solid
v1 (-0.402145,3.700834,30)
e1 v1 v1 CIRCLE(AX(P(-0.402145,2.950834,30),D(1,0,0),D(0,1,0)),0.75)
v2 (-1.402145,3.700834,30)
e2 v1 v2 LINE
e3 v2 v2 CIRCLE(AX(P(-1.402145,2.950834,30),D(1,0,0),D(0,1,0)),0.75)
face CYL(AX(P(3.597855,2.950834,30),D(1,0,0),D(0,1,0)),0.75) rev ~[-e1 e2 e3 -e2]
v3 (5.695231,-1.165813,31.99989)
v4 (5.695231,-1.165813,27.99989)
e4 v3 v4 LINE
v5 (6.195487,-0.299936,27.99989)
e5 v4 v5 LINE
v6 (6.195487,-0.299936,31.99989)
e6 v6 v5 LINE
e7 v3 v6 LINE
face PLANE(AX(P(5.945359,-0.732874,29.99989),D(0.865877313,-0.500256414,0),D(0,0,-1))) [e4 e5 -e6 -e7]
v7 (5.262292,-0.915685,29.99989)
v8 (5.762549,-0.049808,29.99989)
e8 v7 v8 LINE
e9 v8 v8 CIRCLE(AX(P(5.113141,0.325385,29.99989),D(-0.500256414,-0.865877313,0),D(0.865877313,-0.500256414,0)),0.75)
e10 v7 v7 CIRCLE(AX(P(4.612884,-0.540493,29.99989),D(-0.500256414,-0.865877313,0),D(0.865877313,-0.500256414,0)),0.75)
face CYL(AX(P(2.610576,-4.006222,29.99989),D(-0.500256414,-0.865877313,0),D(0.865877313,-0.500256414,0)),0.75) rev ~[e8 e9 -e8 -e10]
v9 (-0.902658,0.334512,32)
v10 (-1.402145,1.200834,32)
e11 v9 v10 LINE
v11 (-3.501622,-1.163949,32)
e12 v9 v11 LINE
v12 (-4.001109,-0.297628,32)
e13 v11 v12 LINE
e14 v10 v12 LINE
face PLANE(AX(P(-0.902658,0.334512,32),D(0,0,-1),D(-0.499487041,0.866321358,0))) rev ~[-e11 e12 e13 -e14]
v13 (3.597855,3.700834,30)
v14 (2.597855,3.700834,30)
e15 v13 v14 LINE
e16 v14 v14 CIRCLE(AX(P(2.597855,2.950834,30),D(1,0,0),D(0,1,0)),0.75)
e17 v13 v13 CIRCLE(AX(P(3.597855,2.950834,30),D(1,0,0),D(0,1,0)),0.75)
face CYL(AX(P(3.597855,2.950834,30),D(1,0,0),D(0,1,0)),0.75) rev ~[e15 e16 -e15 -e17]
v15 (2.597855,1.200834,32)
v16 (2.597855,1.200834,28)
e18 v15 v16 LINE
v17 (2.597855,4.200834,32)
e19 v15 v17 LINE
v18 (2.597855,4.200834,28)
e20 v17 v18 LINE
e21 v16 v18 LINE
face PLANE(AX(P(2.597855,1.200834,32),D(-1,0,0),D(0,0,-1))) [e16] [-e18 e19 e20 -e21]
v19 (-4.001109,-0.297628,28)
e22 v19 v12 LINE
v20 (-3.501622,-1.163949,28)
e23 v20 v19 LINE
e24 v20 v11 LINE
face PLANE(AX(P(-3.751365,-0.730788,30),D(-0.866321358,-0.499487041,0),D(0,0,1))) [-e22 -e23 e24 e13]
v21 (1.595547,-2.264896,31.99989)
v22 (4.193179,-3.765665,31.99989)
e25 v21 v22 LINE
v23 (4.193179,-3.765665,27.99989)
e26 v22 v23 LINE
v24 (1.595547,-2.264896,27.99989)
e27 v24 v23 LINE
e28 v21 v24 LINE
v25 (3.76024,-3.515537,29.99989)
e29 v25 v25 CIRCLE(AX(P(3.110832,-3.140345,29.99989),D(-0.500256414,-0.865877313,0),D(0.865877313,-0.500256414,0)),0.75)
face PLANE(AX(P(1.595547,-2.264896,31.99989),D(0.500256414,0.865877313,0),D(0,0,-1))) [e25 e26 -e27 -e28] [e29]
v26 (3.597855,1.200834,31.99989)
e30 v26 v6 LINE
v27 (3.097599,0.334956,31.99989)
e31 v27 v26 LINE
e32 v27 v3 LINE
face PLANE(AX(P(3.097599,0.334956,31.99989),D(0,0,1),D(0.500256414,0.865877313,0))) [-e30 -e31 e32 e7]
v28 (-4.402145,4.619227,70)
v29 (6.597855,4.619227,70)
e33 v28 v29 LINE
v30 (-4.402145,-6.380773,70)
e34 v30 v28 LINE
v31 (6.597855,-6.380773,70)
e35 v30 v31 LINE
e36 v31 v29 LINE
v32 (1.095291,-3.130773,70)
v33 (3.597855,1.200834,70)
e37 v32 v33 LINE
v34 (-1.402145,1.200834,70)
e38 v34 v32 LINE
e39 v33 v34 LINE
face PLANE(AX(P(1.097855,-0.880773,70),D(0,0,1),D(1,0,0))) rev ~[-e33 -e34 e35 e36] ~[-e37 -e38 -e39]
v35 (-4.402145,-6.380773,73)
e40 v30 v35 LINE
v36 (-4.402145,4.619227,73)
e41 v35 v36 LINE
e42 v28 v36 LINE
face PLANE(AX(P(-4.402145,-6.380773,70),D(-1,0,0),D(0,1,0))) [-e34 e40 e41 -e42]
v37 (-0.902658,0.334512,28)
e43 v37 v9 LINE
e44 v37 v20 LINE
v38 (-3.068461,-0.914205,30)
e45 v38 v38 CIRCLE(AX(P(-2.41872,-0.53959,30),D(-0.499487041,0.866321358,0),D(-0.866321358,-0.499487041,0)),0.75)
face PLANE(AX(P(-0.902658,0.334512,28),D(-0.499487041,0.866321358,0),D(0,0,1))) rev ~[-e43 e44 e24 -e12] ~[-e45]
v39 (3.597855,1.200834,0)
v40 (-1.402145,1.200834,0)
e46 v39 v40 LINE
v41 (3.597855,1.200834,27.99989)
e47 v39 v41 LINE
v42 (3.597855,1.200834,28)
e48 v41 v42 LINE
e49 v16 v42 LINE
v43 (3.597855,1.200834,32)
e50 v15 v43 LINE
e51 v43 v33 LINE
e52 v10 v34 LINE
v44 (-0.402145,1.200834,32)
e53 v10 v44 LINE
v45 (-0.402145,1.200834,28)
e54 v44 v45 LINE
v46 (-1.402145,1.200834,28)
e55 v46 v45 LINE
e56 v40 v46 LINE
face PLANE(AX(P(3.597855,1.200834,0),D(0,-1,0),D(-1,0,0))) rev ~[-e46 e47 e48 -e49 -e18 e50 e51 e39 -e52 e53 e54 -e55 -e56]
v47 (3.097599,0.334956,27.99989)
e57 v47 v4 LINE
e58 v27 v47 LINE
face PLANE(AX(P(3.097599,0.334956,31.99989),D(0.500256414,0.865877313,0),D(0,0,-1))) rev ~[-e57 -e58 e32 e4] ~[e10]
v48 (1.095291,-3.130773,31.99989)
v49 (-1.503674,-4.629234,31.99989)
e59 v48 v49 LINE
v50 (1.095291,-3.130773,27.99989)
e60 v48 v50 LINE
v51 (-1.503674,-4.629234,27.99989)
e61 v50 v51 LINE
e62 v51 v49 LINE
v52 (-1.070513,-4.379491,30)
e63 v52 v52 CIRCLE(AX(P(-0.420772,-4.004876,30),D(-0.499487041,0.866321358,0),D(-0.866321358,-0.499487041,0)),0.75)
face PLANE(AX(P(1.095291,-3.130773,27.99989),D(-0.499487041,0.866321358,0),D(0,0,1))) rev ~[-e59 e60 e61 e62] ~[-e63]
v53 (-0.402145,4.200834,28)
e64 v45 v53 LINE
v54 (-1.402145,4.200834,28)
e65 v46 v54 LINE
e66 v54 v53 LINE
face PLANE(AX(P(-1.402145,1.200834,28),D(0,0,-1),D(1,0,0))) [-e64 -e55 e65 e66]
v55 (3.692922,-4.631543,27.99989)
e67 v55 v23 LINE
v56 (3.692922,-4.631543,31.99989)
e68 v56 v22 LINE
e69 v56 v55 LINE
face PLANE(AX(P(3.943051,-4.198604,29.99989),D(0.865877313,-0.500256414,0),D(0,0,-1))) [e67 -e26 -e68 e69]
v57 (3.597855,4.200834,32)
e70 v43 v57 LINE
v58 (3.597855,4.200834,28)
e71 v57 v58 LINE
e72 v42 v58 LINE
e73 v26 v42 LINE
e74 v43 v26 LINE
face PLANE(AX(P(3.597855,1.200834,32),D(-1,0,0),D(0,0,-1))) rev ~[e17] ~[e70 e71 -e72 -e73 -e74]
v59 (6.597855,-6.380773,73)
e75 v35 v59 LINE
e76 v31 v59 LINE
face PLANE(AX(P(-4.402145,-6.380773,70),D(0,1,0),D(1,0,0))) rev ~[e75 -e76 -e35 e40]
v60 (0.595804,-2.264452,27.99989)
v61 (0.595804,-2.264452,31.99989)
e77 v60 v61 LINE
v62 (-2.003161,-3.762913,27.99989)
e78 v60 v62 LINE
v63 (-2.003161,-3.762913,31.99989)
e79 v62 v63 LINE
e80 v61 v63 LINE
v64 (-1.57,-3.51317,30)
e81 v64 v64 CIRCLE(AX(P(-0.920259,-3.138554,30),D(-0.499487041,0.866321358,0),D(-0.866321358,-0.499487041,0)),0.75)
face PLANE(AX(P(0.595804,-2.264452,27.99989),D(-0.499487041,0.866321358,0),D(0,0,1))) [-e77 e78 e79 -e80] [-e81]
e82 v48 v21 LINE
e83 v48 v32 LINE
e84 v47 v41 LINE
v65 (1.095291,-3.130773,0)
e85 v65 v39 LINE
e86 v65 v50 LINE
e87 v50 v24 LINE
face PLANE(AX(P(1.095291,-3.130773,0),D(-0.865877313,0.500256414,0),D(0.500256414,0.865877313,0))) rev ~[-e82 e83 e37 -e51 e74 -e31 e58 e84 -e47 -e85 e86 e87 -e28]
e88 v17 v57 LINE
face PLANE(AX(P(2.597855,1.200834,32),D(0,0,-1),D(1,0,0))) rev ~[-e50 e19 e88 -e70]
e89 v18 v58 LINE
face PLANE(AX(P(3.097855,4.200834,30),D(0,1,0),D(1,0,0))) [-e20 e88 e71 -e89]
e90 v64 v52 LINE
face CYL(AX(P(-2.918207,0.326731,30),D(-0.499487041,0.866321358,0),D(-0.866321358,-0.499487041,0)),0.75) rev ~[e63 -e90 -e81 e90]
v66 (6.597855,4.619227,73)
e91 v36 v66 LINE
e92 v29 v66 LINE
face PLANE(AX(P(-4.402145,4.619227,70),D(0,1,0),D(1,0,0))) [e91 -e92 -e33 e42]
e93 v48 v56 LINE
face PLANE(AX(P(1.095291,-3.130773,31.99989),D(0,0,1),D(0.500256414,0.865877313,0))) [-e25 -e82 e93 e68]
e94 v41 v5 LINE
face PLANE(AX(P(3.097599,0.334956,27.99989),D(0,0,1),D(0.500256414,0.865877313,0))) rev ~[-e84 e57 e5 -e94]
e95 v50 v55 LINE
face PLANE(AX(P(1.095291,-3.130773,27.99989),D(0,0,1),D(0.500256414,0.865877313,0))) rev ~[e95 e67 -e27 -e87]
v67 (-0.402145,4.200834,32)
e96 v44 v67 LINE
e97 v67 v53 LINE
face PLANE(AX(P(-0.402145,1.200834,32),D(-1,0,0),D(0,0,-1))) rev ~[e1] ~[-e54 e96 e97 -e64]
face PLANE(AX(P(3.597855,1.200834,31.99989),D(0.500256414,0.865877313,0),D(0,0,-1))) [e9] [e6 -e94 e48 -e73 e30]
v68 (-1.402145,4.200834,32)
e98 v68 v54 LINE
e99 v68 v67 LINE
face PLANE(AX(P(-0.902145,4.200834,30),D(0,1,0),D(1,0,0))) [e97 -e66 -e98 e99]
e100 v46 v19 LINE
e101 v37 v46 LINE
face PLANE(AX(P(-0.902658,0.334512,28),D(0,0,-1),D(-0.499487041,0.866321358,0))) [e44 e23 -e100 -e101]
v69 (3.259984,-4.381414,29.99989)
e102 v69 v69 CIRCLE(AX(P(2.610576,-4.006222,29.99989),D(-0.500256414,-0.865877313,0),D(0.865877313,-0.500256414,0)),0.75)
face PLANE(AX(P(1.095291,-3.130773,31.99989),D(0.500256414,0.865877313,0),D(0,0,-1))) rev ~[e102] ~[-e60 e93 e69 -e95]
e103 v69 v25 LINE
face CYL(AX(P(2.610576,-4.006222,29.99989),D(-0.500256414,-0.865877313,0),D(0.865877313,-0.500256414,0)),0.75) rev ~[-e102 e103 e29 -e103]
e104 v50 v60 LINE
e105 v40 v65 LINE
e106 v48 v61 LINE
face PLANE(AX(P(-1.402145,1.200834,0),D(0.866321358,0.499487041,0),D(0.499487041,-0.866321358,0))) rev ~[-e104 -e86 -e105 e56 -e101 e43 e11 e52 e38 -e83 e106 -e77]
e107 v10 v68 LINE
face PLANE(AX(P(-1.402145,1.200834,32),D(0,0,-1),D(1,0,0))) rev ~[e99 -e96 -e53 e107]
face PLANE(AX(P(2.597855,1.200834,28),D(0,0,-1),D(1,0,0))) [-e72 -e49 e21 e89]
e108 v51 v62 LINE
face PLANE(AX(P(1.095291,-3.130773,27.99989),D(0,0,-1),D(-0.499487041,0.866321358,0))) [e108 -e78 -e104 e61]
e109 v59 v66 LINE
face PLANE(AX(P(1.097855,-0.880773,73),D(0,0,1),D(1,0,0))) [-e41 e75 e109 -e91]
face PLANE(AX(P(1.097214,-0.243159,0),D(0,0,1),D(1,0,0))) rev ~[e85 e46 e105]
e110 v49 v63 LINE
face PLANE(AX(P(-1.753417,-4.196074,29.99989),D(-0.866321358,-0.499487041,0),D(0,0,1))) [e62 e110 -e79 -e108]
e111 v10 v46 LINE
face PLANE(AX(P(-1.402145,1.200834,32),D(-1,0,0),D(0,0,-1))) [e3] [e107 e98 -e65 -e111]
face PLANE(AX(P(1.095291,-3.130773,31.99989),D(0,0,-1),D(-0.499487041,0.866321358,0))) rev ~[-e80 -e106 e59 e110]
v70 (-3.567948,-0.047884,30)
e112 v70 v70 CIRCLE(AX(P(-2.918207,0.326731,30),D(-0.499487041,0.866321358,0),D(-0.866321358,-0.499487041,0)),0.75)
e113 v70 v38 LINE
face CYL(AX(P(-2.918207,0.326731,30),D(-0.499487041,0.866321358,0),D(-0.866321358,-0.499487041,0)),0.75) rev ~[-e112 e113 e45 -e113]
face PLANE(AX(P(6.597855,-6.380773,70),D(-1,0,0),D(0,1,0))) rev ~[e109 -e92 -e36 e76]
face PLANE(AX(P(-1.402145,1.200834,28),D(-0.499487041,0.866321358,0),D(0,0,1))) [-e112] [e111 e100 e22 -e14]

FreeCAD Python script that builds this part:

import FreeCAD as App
import Part
import Sketcher
from FreeCAD import Vector
Q = App.Units.Quantity

doc = App.newDocument("Part")
body = doc.addObject("PartDesign::Body", "Body")

sketch1 = body.newObject("Sketcher::SketchObject", "Sketch")
sketch1.AttachmentSupport = (doc.getObject("XY_Plane"), [""])
sketch1.MapMode = "FlatFace"
sketch1.addGeometry([
    Part.LineSegment(Vector(-1, 1, 0), Vector(1, -3, 0)),
    Part.LineSegment(Vector(1, -3, 0), Vector(4, 1, 0)),
    Part.LineSegment(Vector(4, 1, 0), Vector(-1, 1, 0)),
], False)
sketch1.addConstraint([
    Sketcher.Constraint("Coincident", 0, 2, 1, 1),
    Sketcher.Constraint("Coincident", 1, 2, 2, 1),
    Sketcher.Constraint("Coincident", 2, 2, 0, 1),
    Sketcher.Constraint("Horizontal", 2),
    Sketcher.Constraint("DistanceX", 2, 2, 2, 1, Q("5 mm")),
    Sketcher.Constraint("Distance", 0, Q("5 mm")),
    Sketcher.Constraint("DistanceX", -1, 1, 0, 2, Q("1.095291 mm")),
    Sketcher.Constraint("Distance", 1, Q("5.002564 mm")),
    Sketcher.Constraint("DistanceY", 0, 2, -1, 1, Q("3.130773 mm")),
])
pad1 = body.newObject("PartDesign::Pad", "Pad")
pad1.Profile = sketch1
pad1.Length = 70

sketch2 = body.newObject("Sketcher::SketchObject", "Sketch001")
sketch2.AttachmentSupport = (doc.getObject("XZ_Plane"), [""])
sketch2.MapMode = "FlatFace"
sketch2.AttachmentOffset = App.Placement(Vector(0, 0, -1.200834), App.Rotation())
sketch2.addGeometry([
    Part.LineSegment(Vector(-1.4, 28, 0), Vector(-1.4, 32, 0)),
    Part.LineSegment(Vector(-1.4, 32, 0), Vector(-0.4, 32, 0)),
    Part.LineSegment(Vector(-0.4, 32, 0), Vector(-0.4, 28, 0)),
    Part.LineSegment(Vector(-0.4, 28, 0), Vector(-1.4, 28, 0)),
], False)
sketch2.addConstraint([
    Sketcher.Constraint("Coincident", 0, 2, 1, 1),
    Sketcher.Constraint("Coincident", 1, 2, 2, 1),
    Sketcher.Constraint("Coincident", 2, 2, 3, 1),
    Sketcher.Constraint("Coincident", 3, 2, 0, 1),
    Sketcher.Constraint("Vertical", 0),
    Sketcher.Constraint("Horizontal", 1),
    Sketcher.Constraint("Vertical", 2),
    Sketcher.Constraint("Horizontal", 3),
    Sketcher.Constraint("DistanceX", 1, 1, 1, 2, Q("1 mm")),
    Sketcher.Constraint("DistanceY", 0, 1, 0, 2, Q("4 mm")),
    Sketcher.Constraint("DistanceY", -1, 1, 0, 2, Q("32 mm")),
    Sketcher.Constraint("DistanceX", 0, 2, -1, 1, Q("1.402145 mm")),
])
pad2 = body.newObject("PartDesign::Pad", "Pad001")
pad2.Profile = sketch2
pad2.Length = 3
pad2.Reversed = True

sketch3 = body.newObject("Sketcher::SketchObject", "Sketch002")
sketch3.AttachmentSupport = (doc.getObject("XZ_Plane"), [""])
sketch3.MapMode = "FlatFace"
sketch3.AttachmentOffset = App.Placement(Vector(0, 0, -1.200834), App.Rotation())
sketch3.addGeometry([
    Part.LineSegment(Vector(2.6, 28, 0), Vector(2.6, 32, 0)),
    Part.LineSegment(Vector(2.6, 32, 0), Vector(3.6, 32, 0)),
    Part.LineSegment(Vector(3.6, 32, 0), Vector(3.6, 28, 0)),
    Part.LineSegment(Vector(3.6, 28, 0), Vector(2.6, 28, 0)),
], False)
sketch3.addConstraint([
    Sketcher.Constraint("Coincident", 0, 2, 1, 1),
    Sketcher.Constraint("Coincident", 1, 2, 2, 1),
    Sketcher.Constraint("Coincident", 2, 2, 3, 1),
    Sketcher.Constraint("Coincident", 3, 2, 0, 1),
    Sketcher.Constraint("Vertical", 0),
    Sketcher.Constraint("Horizontal", 1),
    Sketcher.Constraint("Vertical", 2),
    Sketcher.Constraint("Horizontal", 3),
    Sketcher.Constraint("DistanceX", 1, 1, 1, 2, Q("1 mm")),
    Sketcher.Constraint("DistanceY", 0, 1, 0, 2, Q("4 mm")),
    Sketcher.Constraint("DistanceY", -1, 1, 0, 2, Q("32 mm")),
    Sketcher.Constraint("DistanceX", -1, 1, 0, 2, Q("2.597855 mm")),
])
pad3 = body.newObject("PartDesign::Pad", "Pad002")
pad3.Profile = sketch3
pad3.Length = 3
pad3.Reversed = True

sketch4 = body.newObject("Sketcher::SketchObject", "Sketch003")
sketch4.AttachmentSupport = (doc.getObject("YZ_Plane"), [""])
sketch4.MapMode = "FlatFace"
sketch4.AttachmentOffset = App.Placement(Vector(0, 0, 3.597855), App.Rotation())
sketch4.addGeometry(Part.Circle(Vector(3, 30, 0), Vector(0, 0, 1), 0.8), False)
sketch4.addConstraint([
    Sketcher.Constraint("Diameter", 0, Q("1.5 mm")),
    Sketcher.Constraint("DistanceY", -1, 1, 0, 3, Q("30 mm")),
    Sketcher.Constraint("DistanceX", -1, 1, 0, 3, Q("2.950834 mm")),
])
pocket1 = body.newObject("PartDesign::Pocket", "Pocket")
pocket1.Profile = sketch4
pocket1.Length = 5

sketch5 = body.newObject("Sketcher::SketchObject", "Sketch004")
sketch5.Placement = App.Placement(Vector(2.177315, -1.257933, 0), App.Rotation(Vector(0, 0, -1), Vector(0.500256414, 0.865877313, 0), Vector(0.865877313, -0.500256414, 0), "ZXY"))
sketch5.addGeometry([
    Part.LineSegment(Vector(-32, 2.8, 0), Vector(-32, 1.8, 0)),
    Part.LineSegment(Vector(-32, 1.8, 0), Vector(-28, 1.8, 0)),
    Part.LineSegment(Vector(-28, 1.8, 0), Vector(-28, 2.8, 0)),
    Part.LineSegment(Vector(-28, 2.8, 0), Vector(-32, 2.8, 0)),
], False)
sketch5.addConstraint([
    Sketcher.Constraint("Coincident", 0, 2, 1, 1),
    Sketcher.Constraint("Coincident", 1, 2, 2, 1),
    Sketcher.Constraint("Coincident", 2, 2, 3, 1),
    Sketcher.Constraint("Coincident", 3, 2, 0, 1),
    Sketcher.Constraint("Vertical", 0),
    Sketcher.Constraint("Horizontal", 1),
    Sketcher.Constraint("Vertical", 2),
    Sketcher.Constraint("Horizontal", 3),
    Sketcher.Constraint("DistanceX", 1, 1, 1, 2, Q("4 mm")),
    Sketcher.Constraint("DistanceY", 0, 2, 0, 1, Q("1 mm")),
    Sketcher.Constraint("DistanceX", 0, 2, -1, 1, Q("31.99989 mm")),
    Sketcher.Constraint("DistanceY", -1, 1, 0, 2, Q("1.839625 mm")),
])
pad4 = body.newObject("PartDesign::Pad", "Pad003")
pad4.Profile = sketch5
pad4.Length = 3

sketch6 = body.newObject("Sketcher::SketchObject", "Sketch005")
sketch6.Placement = App.Placement(Vector(2.177315, -1.257933, 0), App.Rotation(Vector(0, 0, -1), Vector(0.500256414, 0.865877313, 0), Vector(0.865877313, -0.500256414, 0), "ZXY"))
sketch6.addGeometry([
    Part.LineSegment(Vector(-32, -1.2, 0), Vector(-32, -2.2, 0)),
    Part.LineSegment(Vector(-32, -2.2, 0), Vector(-28, -2.2, 0)),
    Part.LineSegment(Vector(-28, -2.2, 0), Vector(-28, -1.2, 0)),
    Part.LineSegment(Vector(-28, -1.2, 0), Vector(-32, -1.2, 0)),
], False)
sketch6.addConstraint([
    Sketcher.Constraint("Coincident", 0, 2, 1, 1),
    Sketcher.Constraint("Coincident", 1, 2, 2, 1),
    Sketcher.Constraint("Coincident", 2, 2, 3, 1),
    Sketcher.Constraint("Coincident", 3, 2, 0, 1),
    Sketcher.Constraint("Vertical", 0),
    Sketcher.Constraint("Horizontal", 1),
    Sketcher.Constraint("Vertical", 2),
    Sketcher.Constraint("Horizontal", 3),
    Sketcher.Constraint("DistanceX", 1, 1, 1, 2, Q("4 mm")),
    Sketcher.Constraint("DistanceY", 0, 2, 0, 1, Q("1 mm")),
    Sketcher.Constraint("DistanceX", 0, 2, -1, 1, Q("31.99989 mm")),
    Sketcher.Constraint("DistanceY", 0, 2, -1, 1, Q("2.162939 mm")),
])
pad5 = body.newObject("PartDesign::Pad", "Pad004")
pad5.Profile = sketch6
pad5.Length = 3

sketch7 = body.newObject("Sketcher::SketchObject", "Sketch006")
sketch7.Placement = App.Placement(Vector(-1.082024, -1.87284, 0), App.Rotation(Vector(-0.865877313, 0.500256414, 0), Vector(0, 0, -1.000000001), Vector(-0.500256414, -0.865877313, 0), "ZXY"))
sketch7.addGeometry(Part.Circle(Vector(-4.3, -30, 0), Vector(0, 0, 1), 0.8), False)
sketch7.addConstraint([
    Sketcher.Constraint("Diameter", 0, Q("1.5 mm")),
    Sketcher.Constraint("DistanceY", 0, 3, -1, 1, Q("29.99989 mm")),
    Sketcher.Constraint("DistanceX", 0, 3, -1, 1, Q("4.264577 mm")),
])
pocket2 = body.newObject("PartDesign::Pocket", "Pocket001")
pocket2.Profile = sketch7
pocket2.Length = 5.1

sketch8 = body.newObject("Sketcher::SketchObject", "Sketch007")
sketch8.Placement = App.Placement(Vector(-0.532707, -0.307138, 0), App.Rotation(Vector(0, 0, 1), Vector(-0.499487041, 0.866321358, 0), Vector(-0.866321358, -0.499487041, 0), "ZXY"))
sketch8.addGeometry([
    Part.LineSegment(Vector(28, -2.3, 0), Vector(28, -3.3, 0)),
    Part.LineSegment(Vector(28, -3.3, 0), Vector(32, -3.3, 0)),
    Part.LineSegment(Vector(32, -3.3, 0), Vector(32, -2.3, 0)),
    Part.LineSegment(Vector(32, -2.3, 0), Vector(28, -2.3, 0)),
], False)
sketch8.addConstraint([
    Sketcher.Constraint("Coincident", 0, 2, 1, 1),
    Sketcher.Constraint("Coincident", 1, 2, 2, 1),
    Sketcher.Constraint("Coincident", 2, 2, 3, 1),
    Sketcher.Constraint("Coincident", 3, 2, 0, 1),
    Sketcher.Constraint("Vertical", 0),
    Sketcher.Constraint("Horizontal", 1),
    Sketcher.Constraint("Vertical", 2),
    Sketcher.Constraint("Horizontal", 3),
    Sketcher.Constraint("DistanceX", 1, 1, 1, 2, Q("4 mm")),
    Sketcher.Constraint("DistanceY", 0, 2, 0, 1, Q("1 mm")),
    Sketcher.Constraint("DistanceX", -1, 1, 0, 2, Q("27.99989 mm")),
    Sketcher.Constraint("DistanceY", 0, 2, -1, 1, Q("3.259339 mm")),
])
pad6 = body.newObject("PartDesign::Pad", "Pad005")
pad6.Profile = sketch8
pad6.Length = 3

sketch9 = body.newObject("Sketcher::SketchObject", "Sketch008")
sketch9.Placement = App.Placement(Vector(-0.532707, -0.307138, 0), App.Rotation(Vector(0, 0, 1), Vector(-0.499487041, 0.866321358, 0), Vector(-0.866321358, -0.499487041, 0), "ZXY"))
sketch9.addGeometry([
    Part.LineSegment(Vector(28, 1.7, 0), Vector(28, 0.7, 0)),
    Part.LineSegment(Vector(28, 0.7, 0), Vector(32, 0.7, 0)),
    Part.LineSegment(Vector(32, 0.7, 0), Vector(32, 1.7, 0)),
    Part.LineSegment(Vector(32, 1.7, 0), Vector(28, 1.7, 0)),
], False)
sketch9.addConstraint([
    Sketcher.Constraint("Coincident", 0, 2, 1, 1),
    Sketcher.Constraint("Coincident", 1, 2, 2, 1),
    Sketcher.Constraint("Coincident", 2, 2, 3, 1),
    Sketcher.Constraint("Coincident", 3, 2, 0, 1),
    Sketcher.Constraint("Vertical", 0),
    Sketcher.Constraint("Horizontal", 1),
    Sketcher.Constraint("Vertical", 2),
    Sketcher.Constraint("Horizontal", 3),
    Sketcher.Constraint("DistanceX", 1, 1, 1, 2, Q("4 mm")),
    Sketcher.Constraint("DistanceY", 0, 2, 0, 1, Q("1 mm")),
    Sketcher.Constraint("DistanceX", -1, 1, 0, 2, Q("28 mm")),
    Sketcher.Constraint("DistanceY", -1, 1, 0, 2, Q("0.740661 mm")),
])
pad7 = body.newObject("PartDesign::Pad", "Pad006")
pad7.Profile = sketch9
pad7.Length = 3

sketch10 = body.newObject("Sketcher::SketchObject", "Sketch009")
sketch10.Placement = App.Placement(Vector(-0.869438, 1.507972, 0), App.Rotation(Vector(0.866321358, 0.499487041, 0), Vector(0, 0, -0.999999999), Vector(-0.499487041, 0.866321358, 0), "ZXY"))
sketch10.addGeometry(Part.Circle(Vector(-2.4, -30, 0), Vector(0, 0, 1), 0.8), False)
sketch10.addConstraint([
    Sketcher.Constraint("Diameter", 0, Q("1.5 mm")),
    Sketcher.Constraint("DistanceY", 0, 3, -1, 1, Q("30 mm")),
    Sketcher.Constraint("DistanceX", 0, 3, -1, 1, Q("2.364907 mm")),
])
pocket3 = body.newObject("PartDesign::Pocket", "Pocket002")
pocket3.Profile = sketch10
pocket3.Length = 5.1

sketch11 = body.newObject("Sketcher::SketchObject", "Sketch010")
sketch11.AttachmentSupport = (doc.getObject("XY_Plane"), [""])
sketch11.MapMode = "FlatFace"
sketch11.AttachmentOffset = App.Placement(Vector(0, 0, 70), App.Rotation())
sketch11.addGeometry([
    Part.LineSegment(Vector(-4, 5, 0), Vector(-4, -6, 0)),
    Part.LineSegment(Vector(-4, -6, 0), Vector(7, -6, 0)),
    Part.LineSegment(Vector(7, -6, 0), Vector(7, 5, 0)),
    Part.LineSegment(Vector(7, 5, 0), Vector(-4, 5, 0)),
], False)
sketch11.addConstraint([
    Sketcher.Constraint("Coincident", 0, 2, 1, 1),
    Sketcher.Constraint("Coincident", 1, 2, 2, 1),
    Sketcher.Constraint("Coincident", 2, 2, 3, 1),
    Sketcher.Constraint("Coincident", 3, 2, 0, 1),
    Sketcher.Constraint("Vertical", 0),
    Sketcher.Constraint("Horizontal", 1),
    Sketcher.Constraint("Vertical", 2),
    Sketcher.Constraint("Horizontal", 3),
    Sketcher.Constraint("Equal", 3, 0),
    Sketcher.Constraint("DistanceX", 1, 1, 1, 2, Q("11 mm")),
    Sketcher.Constraint("DistanceX", 0, 2, -1, 1, Q("4.402145 mm")),
    Sketcher.Constraint("DistanceY", 0, 2, -1, 1, Q("6.380773 mm")),
])
pad8 = body.newObject("PartDesign::Pad", "Pad007")
pad8.Profile = sketch11
pad8.Length = 3

doc.recompute()
